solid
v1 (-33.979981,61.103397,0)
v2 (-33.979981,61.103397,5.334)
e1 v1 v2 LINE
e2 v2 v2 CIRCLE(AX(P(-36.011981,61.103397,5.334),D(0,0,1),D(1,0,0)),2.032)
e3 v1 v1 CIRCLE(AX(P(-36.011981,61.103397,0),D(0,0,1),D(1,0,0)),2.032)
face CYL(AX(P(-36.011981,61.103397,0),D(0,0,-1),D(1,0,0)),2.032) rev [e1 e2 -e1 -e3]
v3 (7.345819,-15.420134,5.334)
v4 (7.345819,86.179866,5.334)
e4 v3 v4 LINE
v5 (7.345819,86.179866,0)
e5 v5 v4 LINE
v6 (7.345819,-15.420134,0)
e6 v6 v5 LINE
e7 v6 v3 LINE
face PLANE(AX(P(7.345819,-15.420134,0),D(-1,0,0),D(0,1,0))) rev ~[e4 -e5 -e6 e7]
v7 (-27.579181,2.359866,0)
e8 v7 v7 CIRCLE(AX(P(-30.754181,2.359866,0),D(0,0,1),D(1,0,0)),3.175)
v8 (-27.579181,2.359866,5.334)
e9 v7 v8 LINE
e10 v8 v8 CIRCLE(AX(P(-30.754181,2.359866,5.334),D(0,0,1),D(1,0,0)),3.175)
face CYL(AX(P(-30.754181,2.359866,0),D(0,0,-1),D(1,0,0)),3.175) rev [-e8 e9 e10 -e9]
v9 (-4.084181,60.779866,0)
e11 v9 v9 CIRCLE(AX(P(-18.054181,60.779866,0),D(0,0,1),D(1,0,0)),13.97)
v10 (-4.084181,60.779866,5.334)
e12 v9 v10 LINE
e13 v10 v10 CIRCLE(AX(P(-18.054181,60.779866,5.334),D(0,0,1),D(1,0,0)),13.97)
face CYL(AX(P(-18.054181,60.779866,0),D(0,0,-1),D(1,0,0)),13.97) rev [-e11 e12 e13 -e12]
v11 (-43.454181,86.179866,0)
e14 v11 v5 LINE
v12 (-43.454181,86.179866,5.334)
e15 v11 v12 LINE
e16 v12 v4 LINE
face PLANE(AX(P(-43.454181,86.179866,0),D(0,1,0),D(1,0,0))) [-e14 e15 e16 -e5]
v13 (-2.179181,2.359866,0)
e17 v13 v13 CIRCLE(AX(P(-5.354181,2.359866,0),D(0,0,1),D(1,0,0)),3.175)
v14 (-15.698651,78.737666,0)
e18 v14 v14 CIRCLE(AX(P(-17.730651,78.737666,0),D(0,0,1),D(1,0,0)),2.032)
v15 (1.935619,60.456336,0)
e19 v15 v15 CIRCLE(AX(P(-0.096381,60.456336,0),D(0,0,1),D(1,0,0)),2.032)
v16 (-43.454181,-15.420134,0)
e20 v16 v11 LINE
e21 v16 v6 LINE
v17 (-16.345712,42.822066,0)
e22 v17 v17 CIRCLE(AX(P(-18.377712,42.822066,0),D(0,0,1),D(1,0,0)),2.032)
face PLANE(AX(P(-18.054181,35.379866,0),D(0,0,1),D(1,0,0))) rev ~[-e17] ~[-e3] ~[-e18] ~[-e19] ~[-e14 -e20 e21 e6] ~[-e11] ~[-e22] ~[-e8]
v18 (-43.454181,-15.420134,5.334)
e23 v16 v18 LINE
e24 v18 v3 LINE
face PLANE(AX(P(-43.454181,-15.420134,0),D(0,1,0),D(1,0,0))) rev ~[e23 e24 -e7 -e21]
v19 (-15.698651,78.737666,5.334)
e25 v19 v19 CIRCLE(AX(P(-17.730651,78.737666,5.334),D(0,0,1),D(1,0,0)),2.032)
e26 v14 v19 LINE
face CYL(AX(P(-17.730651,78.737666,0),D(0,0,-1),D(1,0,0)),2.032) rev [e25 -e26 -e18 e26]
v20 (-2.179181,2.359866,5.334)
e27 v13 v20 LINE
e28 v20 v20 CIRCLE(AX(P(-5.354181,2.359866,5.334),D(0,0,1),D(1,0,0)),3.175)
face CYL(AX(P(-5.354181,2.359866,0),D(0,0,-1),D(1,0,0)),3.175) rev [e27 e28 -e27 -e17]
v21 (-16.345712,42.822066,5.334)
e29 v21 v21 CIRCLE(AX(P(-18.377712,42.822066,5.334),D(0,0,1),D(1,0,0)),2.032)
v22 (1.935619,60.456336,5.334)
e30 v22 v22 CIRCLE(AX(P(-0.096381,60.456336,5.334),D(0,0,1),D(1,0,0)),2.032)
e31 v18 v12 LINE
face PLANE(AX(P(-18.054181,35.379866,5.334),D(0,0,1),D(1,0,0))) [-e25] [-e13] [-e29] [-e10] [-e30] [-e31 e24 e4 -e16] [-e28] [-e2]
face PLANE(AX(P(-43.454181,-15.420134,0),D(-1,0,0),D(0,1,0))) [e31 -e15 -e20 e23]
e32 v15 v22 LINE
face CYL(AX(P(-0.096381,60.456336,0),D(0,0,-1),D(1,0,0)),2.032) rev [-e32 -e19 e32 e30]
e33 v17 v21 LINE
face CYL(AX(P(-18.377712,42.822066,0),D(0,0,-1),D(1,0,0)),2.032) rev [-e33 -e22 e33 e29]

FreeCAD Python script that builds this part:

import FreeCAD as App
import Part
import Sketcher
Q = App.Units.Quantity

doc = App.newDocument("Part")
body = doc.addObject("PartDesign::Body", "Body")

sketch1 = body.newObject("Sketcher::SketchObject", "Sketch")
sketch1.AttachmentSupport = (doc.getObject("XY_Plane"), [""])
sketch1.MapMode = "FlatFace"
sketch1.addGeometry([
    Part.LineSegment(App.Vector(-43.5, 86.2, 0), App.Vector(-43.5, -15.4, 0)),
    Part.LineSegment(App.Vector(-43.5, -15.4, 0), App.Vector(7.3, -15.4, 0)),
    Part.LineSegment(App.Vector(7.3, -15.4, 0), App.Vector(7.3, 86.2, 0)),
    Part.LineSegment(App.Vector(7.3, 86.2, 0), App.Vector(-43.5, 86.2, 0)),
    Part.Circle(App.Vector(-30.8, 2.4, 0), App.Vector(0, 0, 1), 3.2),
    Part.Circle(App.Vector(-5.4, 2.4, 0), App.Vector(0, 0, 1), 3.2),
    Part.Circle(App.Vector(-18.4, 42.8, 0), App.Vector(0, 0, 1), 2),
    Part.Circle(App.Vector(-36, 61.1, 0), App.Vector(0, 0, 1), 2),
    Part.Circle(App.Vector(-18.1, 60.8, 0), App.Vector(0, 0, 1), 14),
    Part.Circle(App.Vector(-17.7, 78.7, 0), App.Vector(0, 0, 1), 2),
    Part.Circle(App.Vector(-0.1, 60.5, 0), App.Vector(0, 0, 1), 2),
], False)
sketch1.addConstraint([
    Sketcher.Constraint("Coincident", 0, 2, 1, 1),
    Sketcher.Constraint("Coincident", 1, 2, 2, 1),
    Sketcher.Constraint("Coincident", 2, 2, 3, 1),
    Sketcher.Constraint("Coincident", 3, 2, 0, 1),
    Sketcher.Constraint("Vertical", 0),
    Sketcher.Constraint("Horizontal", 1),
    Sketcher.Constraint("Vertical", 2),
    Sketcher.Constraint("Horizontal", 3),
    Sketcher.Constraint("Equal", 4, 5),
    Sketcher.Constraint("Equal", 6, 7),
    Sketcher.Constraint("Equal", 7, 9),
    Sketcher.Constraint("Equal", 9, 10),
    Sketcher.Constraint("Horizontal", 4, 3, 5, 3),
    Sketcher.Constraint("Diameter", 8, Q("1.1 in")),
    Sketcher.Constraint("Diameter", 4, Q("0.25 in")),
    Sketcher.Constraint("Diameter", 6, Q("0.16 in")),
    Sketcher.Constraint("DistanceX", 1, 1, 1, 2, Q("2 in")),
    Sketcher.Constraint("DistanceY", 0, 2, 0, 1, Q("4 in")),
    Sketcher.Constraint("DistanceX", 4, 3, 5, 3, Q("1 in")),
    Sketcher.Constraint("DistanceX", 0, 2, 8, 3, Q("1 in")),
    Sketcher.Constraint("DistanceY", 0, 2, 8, 3, Q("3 in")),
    Sketcher.Constraint("DistanceX", 4, 3, 8, 3, Q("0.5 in")),
    Sketcher.Constraint("DistanceY", 4, 3, 8, 3, Q("2.3 in")),
    Sketcher.Constraint("DistanceY", 4, 3, 6, 3, Q("1.593 in")),
    Sketcher.Constraint("DistanceX", 7, 3, 4, 3, Q("0.207 in")),
    Sketcher.Constraint("DistanceY", 8, 3, 9, 3, Q("0.707 in")),
    Sketcher.Constraint("DistanceX", 8, 3, 10, 3, Q("0.707 in")),
    Sketcher.Constraint("DistanceX", 4, 3, -1, 1, 30.754181),
    Sketcher.Constraint("DistanceX", 6, 3, -1, 1, 18.377712),
    Sketcher.Constraint("DistanceX", 9, 3, -1, 1, 17.730651),
    Sketcher.Constraint("DistanceY", 6, 3, 7, 3, 18.281331),
    Sketcher.Constraint("DistanceY", 10, 3, 8, 3, 0.32353),
    Sketcher.Constraint("DistanceY", -1, 1, 4, 3, 2.359866),
])
pad1 = body.newObject("PartDesign::Pad", "Pad")
pad1.Profile = sketch1
pad1.Length = Q("0.21 in")

sketch2 = body.newObject("Sketcher::SketchObject", "Sketch001")
sketch2.AttachmentSupport = (doc.getObject("XY_Plane"), [""])
sketch2.MapMode = "FlatFace"
sketch2.addGeometry([
    Part.Circle(App.Vector(-5.4, 2.4, 0), App.Vector(0, 0, 1), 3.2),
    Part.Circle(App.Vector(-30.8, 2.4, 0), App.Vector(0, 0, 1), 3.2),
], False)
sketch2.addConstraint([
    Sketcher.Constraint("Equal", 0, 1),
    Sketcher.Constraint("Horizontal", 0, 3, 1, 3),
    Sketcher.Constraint("Diameter", 0, Q("0.25 in")),
    Sketcher.Constraint("DistanceX", 1, 3, 0, 3, Q("1 in")),
    Sketcher.Constraint("DistanceX", 0, 3, -1, 1, 5.354181),
    Sketcher.Constraint("DistanceY", -1, 1, 0, 3, 2.359866),
])
pocket1 = body.newObject("PartDesign::Pocket", "Pocket")
pocket1.Profile = sketch2
pocket1.Length = Q("1 in")
pocket1.Reversed = True

doc.recompute()
